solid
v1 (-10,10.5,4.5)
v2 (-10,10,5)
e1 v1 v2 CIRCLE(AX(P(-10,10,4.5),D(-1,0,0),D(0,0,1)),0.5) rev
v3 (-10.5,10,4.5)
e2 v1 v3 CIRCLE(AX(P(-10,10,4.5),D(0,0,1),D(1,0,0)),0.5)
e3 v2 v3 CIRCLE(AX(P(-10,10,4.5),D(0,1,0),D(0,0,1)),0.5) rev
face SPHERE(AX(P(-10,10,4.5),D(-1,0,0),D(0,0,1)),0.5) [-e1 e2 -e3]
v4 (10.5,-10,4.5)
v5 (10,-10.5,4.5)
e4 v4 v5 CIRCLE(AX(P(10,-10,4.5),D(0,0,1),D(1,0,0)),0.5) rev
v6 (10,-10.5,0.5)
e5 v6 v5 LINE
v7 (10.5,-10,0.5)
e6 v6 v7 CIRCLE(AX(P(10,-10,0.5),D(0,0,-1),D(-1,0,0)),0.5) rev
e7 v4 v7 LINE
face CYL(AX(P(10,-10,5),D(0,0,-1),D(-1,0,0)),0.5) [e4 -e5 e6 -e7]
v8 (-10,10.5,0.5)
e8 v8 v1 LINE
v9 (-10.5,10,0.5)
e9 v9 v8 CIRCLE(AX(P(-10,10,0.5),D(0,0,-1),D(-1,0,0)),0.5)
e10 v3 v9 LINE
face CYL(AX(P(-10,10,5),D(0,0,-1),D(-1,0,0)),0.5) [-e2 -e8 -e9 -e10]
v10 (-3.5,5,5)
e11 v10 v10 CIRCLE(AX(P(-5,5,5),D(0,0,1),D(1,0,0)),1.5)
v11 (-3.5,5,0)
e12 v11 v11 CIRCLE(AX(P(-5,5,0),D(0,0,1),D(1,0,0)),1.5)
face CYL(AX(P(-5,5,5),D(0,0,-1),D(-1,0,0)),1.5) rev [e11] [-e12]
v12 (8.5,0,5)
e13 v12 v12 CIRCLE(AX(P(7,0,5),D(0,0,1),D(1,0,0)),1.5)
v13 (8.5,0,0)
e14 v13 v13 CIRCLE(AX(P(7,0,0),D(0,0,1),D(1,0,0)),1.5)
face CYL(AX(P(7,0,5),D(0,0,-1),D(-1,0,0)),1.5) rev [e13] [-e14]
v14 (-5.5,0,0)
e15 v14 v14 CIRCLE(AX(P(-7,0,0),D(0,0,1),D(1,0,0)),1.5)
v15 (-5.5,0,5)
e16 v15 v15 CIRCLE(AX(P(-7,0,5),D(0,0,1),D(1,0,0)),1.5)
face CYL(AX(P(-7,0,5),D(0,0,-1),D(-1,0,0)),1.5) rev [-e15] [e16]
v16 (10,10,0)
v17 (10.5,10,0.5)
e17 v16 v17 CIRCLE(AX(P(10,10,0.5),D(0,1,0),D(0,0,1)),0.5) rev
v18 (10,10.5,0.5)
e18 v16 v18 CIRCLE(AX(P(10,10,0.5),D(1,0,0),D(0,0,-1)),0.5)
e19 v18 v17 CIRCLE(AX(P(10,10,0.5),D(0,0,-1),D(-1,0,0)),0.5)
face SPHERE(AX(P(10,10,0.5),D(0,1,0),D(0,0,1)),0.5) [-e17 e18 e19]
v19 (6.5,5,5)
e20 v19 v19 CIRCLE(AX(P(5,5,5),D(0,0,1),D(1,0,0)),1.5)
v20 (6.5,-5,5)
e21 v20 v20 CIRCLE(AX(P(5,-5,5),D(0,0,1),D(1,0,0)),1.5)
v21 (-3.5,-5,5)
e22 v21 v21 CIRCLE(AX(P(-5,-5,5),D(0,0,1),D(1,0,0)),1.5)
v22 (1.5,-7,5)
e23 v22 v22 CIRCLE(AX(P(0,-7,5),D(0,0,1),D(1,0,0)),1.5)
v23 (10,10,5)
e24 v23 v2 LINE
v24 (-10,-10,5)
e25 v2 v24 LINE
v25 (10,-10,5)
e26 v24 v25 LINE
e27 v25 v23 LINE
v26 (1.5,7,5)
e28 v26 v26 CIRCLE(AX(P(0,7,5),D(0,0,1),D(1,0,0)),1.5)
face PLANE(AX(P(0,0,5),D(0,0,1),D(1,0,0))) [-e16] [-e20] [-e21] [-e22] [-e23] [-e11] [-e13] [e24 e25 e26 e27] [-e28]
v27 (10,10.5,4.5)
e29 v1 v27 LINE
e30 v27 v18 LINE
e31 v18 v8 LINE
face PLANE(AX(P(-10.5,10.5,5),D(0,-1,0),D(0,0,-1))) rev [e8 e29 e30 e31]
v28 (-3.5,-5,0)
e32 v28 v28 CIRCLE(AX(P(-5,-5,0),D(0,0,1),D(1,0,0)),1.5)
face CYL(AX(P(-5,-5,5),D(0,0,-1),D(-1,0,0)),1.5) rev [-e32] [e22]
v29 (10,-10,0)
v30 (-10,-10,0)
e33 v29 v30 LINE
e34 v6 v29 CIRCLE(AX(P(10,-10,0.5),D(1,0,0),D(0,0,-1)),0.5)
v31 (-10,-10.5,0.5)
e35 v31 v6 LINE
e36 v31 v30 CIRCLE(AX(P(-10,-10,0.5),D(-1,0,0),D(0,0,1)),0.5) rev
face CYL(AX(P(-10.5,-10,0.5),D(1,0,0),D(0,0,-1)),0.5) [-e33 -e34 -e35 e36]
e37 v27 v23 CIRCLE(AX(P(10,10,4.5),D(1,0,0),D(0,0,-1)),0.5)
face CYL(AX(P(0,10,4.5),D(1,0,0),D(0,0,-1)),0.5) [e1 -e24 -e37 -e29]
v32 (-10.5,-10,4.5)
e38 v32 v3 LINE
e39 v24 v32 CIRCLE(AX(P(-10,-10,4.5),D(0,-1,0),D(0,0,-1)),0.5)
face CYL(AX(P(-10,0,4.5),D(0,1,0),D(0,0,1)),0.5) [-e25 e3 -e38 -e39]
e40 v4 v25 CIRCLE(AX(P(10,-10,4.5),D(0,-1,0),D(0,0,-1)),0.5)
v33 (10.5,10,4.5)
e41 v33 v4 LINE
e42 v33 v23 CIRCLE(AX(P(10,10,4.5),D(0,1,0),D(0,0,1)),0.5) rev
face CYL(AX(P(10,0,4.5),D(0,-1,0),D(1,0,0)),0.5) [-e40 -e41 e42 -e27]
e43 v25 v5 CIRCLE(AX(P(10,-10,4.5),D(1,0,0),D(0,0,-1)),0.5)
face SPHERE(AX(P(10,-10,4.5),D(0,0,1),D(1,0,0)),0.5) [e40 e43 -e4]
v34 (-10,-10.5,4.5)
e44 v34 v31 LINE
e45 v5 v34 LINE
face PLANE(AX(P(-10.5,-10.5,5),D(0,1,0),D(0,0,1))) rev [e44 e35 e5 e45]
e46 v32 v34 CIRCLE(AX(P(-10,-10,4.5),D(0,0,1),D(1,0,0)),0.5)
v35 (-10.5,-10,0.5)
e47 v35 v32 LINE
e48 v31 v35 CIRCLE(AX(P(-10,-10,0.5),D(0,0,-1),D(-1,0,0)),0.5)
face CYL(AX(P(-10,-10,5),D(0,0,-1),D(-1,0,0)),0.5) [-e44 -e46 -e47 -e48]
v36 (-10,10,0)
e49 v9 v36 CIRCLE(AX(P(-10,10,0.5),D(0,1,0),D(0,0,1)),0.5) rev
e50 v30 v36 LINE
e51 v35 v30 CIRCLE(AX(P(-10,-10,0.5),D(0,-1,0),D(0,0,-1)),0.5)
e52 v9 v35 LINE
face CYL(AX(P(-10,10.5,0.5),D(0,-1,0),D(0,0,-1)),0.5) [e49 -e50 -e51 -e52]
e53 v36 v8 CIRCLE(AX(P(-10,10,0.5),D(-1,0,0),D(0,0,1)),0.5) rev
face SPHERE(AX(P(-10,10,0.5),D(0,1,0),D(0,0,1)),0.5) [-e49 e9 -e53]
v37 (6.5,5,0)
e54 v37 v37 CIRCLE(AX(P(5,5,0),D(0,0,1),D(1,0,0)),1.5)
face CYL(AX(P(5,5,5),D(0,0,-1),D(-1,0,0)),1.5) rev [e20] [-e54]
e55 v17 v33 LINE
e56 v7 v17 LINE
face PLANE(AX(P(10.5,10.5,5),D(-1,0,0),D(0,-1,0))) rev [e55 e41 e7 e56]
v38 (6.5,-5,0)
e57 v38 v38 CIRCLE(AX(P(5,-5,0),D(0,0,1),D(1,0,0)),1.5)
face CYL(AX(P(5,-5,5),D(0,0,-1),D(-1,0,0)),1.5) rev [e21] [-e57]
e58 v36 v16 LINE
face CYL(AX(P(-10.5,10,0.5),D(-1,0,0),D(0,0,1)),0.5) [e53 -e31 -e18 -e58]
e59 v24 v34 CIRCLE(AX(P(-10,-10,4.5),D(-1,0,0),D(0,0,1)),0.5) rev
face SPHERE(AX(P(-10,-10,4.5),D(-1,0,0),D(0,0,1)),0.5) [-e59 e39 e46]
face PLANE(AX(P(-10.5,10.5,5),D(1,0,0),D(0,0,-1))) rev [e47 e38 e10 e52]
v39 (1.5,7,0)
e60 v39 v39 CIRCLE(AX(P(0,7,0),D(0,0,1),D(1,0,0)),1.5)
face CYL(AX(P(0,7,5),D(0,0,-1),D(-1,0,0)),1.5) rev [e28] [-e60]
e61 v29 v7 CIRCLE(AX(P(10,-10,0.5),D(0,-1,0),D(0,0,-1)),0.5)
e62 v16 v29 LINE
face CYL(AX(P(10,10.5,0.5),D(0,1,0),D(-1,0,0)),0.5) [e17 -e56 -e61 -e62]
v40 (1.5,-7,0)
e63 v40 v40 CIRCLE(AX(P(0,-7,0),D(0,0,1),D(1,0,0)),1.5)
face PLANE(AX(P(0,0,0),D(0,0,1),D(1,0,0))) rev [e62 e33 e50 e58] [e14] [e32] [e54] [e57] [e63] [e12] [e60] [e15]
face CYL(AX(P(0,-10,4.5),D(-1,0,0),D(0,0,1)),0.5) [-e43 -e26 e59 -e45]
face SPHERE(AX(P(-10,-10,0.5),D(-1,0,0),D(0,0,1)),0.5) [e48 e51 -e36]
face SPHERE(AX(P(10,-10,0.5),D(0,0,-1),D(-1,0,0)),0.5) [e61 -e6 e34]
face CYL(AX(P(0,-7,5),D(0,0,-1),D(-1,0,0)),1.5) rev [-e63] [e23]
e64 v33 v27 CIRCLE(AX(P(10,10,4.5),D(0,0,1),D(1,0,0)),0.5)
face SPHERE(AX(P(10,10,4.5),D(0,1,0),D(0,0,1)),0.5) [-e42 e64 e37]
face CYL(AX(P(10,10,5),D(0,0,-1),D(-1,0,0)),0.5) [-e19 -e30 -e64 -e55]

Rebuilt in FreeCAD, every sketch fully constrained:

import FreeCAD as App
import Part
import Sketcher

V = App.Vector
Q = App.Units.Quantity


def edges_at(feature, points):
    """Names of the edges that pass closest to the given points."""
    edges = feature.Shape.Edges
    near = lambda p: min(range(len(edges)), key=lambda i: edges[i].distToShape(Part.Vertex(*p))[0])
    return sorted({f"Edge{near(p) + 1}" for p in points})

doc = App.newDocument("Part")
body = doc.addObject("PartDesign::Body", "Body")

sketch1 = doc.addObject("Sketcher::SketchObject", "Sketch")
body.addObject(sketch1)
sketch1.AttachmentSupport = (doc.XY_Plane, [""])
sketch1.MapMode = "FlatFace"
sketch1.addGeometry(Part.LineSegment(V(-10.5, 10.5, 0), V(-10.5, -10.5, 0)), False)
sketch1.addGeometry(Part.LineSegment(V(-10.5, -10.5, 0), V(10.5, -10.5, 0)), False)
sketch1.addGeometry(Part.LineSegment(V(10.5, -10.5, 0), V(10.5, 10.5, 0)), False)
sketch1.addGeometry(Part.LineSegment(V(10.5, 10.5, 0), V(-10.5, 10.5, 0)), False)
sketch1.addGeometry(Part.Circle(V(-5, -5, 0), V(0, 0, 1), 1.5), False)
sketch1.addGeometry(Part.Circle(V(0, -7, 0), V(0, 0, 1), 1.5), False)
sketch1.addGeometry(Part.Circle(V(5, -5, 0), V(0, 0, 1), 1.5), False)
sketch1.addGeometry(Part.Circle(V(-7, 0, 0), V(0, 0, 1), 1.5), False)
sketch1.addGeometry(Part.Circle(V(-5, 5, 0), V(0, 0, 1), 1.5), False)
sketch1.addGeometry(Part.Circle(V(7, 0, 0), V(0, 0, 1), 1.5), False)
sketch1.addGeometry(Part.Circle(V(0, 7, 0), V(0, 0, 1), 1.5), False)
sketch1.addGeometry(Part.Circle(V(5, 5, 0), V(0, 0, 1), 1.5), False)
sketch1.addConstraint(Sketcher.Constraint("Coincident", 0, 2, 1, 1))
sketch1.addConstraint(Sketcher.Constraint("Coincident", 1, 2, 2, 1))
sketch1.addConstraint(Sketcher.Constraint("Coincident", 2, 2, 3, 1))
sketch1.addConstraint(Sketcher.Constraint("Coincident", 3, 2, 0, 1))
sketch1.addConstraint(Sketcher.Constraint("Vertical", 0))
sketch1.addConstraint(Sketcher.Constraint("Horizontal", 1))
sketch1.addConstraint(Sketcher.Constraint("Vertical", 2))
sketch1.addConstraint(Sketcher.Constraint("Horizontal", 3))
sketch1.addConstraint(Sketcher.Constraint("Equal", 4, 5))
sketch1.addConstraint(Sketcher.Constraint("Equal", 5, 6))
sketch1.addConstraint(Sketcher.Constraint("Equal", 6, 7))
sketch1.addConstraint(Sketcher.Constraint("Equal", 7, 8))
sketch1.addConstraint(Sketcher.Constraint("Equal", 8, 9))
sketch1.addConstraint(Sketcher.Constraint("Equal", 9, 10))
sketch1.addConstraint(Sketcher.Constraint("Equal", 10, 11))
sketch1.addConstraint(Sketcher.Constraint("Symmetric", 6, 3, 8, 3, -1, 1))
sketch1.addConstraint(Sketcher.Constraint("Symmetric", 7, 3, 9, 3, -1, 1))
sketch1.addConstraint(Sketcher.Constraint("Symmetric", 5, 3, 10, 3, -1, 1))
sketch1.addConstraint(Sketcher.Constraint("Symmetric", 4, 3, 11, 3, -1, 1))
sketch1.addConstraint(Sketcher.Constraint("Symmetric", 0, 2, 2, 2, -1, 1))
sketch1.addConstraint(Sketcher.Constraint("Symmetric", 4, 3, 6, 3, -2))
sketch1.addConstraint(Sketcher.Constraint("PointOnObject", 5, 3, -2))
sketch1.addConstraint(Sketcher.Constraint("PointOnObject", 7, 3, -1))
sketch1.addConstraint(Sketcher.Constraint("Equal", 3, 0))
sketch1.addConstraint(Sketcher.Constraint("Diameter", 4, Q("3 mm")))
sketch1.addConstraint(Sketcher.Constraint("DistanceX", 1, 1, 1, 2, Q("21 mm")))
sketch1.addConstraint(Sketcher.Constraint("DistanceX", 4, 3, -1, 1, Q("5 mm")))
sketch1.addConstraint(Sketcher.Constraint("DistanceY", 4, 3, -1, 1, Q("5 mm")))
sketch1.addConstraint(Sketcher.Constraint("DistanceY", 5, 3, -1, 1, Q("7 mm")))
sketch1.addConstraint(Sketcher.Constraint("DistanceX", 7, 3, -1, 1, Q("7 mm")))
pad1 = doc.addObject("PartDesign::Pad", "Pad")
body.addObject(pad1)
pad1.Profile = sketch1
pad1.Length = 5
doc.recompute()

fillet = doc.addObject("PartDesign::Fillet", "Fillet")
body.addObject(fillet)
fillet.Base = (pad1, edges_at(pad1, [
    (-10.5, 0, 5),
    (0, -10.5, 5),
    (10.5, 0, 5),
    (0, -10.5, 0),
    (-10.5, 0, 0),
    (0, 10.5, 0),
    (10.5, 0, 0),
    (10.5, -10.5, 2.5),
    (-10.5, -10.5, 2.5),
    (-10.5, 10.5, 2.5),
    (10.5, 10.5, 2.5),
    (0, 10.5, 5),
]))
fillet.Radius = 0.5

doc.recompute()
